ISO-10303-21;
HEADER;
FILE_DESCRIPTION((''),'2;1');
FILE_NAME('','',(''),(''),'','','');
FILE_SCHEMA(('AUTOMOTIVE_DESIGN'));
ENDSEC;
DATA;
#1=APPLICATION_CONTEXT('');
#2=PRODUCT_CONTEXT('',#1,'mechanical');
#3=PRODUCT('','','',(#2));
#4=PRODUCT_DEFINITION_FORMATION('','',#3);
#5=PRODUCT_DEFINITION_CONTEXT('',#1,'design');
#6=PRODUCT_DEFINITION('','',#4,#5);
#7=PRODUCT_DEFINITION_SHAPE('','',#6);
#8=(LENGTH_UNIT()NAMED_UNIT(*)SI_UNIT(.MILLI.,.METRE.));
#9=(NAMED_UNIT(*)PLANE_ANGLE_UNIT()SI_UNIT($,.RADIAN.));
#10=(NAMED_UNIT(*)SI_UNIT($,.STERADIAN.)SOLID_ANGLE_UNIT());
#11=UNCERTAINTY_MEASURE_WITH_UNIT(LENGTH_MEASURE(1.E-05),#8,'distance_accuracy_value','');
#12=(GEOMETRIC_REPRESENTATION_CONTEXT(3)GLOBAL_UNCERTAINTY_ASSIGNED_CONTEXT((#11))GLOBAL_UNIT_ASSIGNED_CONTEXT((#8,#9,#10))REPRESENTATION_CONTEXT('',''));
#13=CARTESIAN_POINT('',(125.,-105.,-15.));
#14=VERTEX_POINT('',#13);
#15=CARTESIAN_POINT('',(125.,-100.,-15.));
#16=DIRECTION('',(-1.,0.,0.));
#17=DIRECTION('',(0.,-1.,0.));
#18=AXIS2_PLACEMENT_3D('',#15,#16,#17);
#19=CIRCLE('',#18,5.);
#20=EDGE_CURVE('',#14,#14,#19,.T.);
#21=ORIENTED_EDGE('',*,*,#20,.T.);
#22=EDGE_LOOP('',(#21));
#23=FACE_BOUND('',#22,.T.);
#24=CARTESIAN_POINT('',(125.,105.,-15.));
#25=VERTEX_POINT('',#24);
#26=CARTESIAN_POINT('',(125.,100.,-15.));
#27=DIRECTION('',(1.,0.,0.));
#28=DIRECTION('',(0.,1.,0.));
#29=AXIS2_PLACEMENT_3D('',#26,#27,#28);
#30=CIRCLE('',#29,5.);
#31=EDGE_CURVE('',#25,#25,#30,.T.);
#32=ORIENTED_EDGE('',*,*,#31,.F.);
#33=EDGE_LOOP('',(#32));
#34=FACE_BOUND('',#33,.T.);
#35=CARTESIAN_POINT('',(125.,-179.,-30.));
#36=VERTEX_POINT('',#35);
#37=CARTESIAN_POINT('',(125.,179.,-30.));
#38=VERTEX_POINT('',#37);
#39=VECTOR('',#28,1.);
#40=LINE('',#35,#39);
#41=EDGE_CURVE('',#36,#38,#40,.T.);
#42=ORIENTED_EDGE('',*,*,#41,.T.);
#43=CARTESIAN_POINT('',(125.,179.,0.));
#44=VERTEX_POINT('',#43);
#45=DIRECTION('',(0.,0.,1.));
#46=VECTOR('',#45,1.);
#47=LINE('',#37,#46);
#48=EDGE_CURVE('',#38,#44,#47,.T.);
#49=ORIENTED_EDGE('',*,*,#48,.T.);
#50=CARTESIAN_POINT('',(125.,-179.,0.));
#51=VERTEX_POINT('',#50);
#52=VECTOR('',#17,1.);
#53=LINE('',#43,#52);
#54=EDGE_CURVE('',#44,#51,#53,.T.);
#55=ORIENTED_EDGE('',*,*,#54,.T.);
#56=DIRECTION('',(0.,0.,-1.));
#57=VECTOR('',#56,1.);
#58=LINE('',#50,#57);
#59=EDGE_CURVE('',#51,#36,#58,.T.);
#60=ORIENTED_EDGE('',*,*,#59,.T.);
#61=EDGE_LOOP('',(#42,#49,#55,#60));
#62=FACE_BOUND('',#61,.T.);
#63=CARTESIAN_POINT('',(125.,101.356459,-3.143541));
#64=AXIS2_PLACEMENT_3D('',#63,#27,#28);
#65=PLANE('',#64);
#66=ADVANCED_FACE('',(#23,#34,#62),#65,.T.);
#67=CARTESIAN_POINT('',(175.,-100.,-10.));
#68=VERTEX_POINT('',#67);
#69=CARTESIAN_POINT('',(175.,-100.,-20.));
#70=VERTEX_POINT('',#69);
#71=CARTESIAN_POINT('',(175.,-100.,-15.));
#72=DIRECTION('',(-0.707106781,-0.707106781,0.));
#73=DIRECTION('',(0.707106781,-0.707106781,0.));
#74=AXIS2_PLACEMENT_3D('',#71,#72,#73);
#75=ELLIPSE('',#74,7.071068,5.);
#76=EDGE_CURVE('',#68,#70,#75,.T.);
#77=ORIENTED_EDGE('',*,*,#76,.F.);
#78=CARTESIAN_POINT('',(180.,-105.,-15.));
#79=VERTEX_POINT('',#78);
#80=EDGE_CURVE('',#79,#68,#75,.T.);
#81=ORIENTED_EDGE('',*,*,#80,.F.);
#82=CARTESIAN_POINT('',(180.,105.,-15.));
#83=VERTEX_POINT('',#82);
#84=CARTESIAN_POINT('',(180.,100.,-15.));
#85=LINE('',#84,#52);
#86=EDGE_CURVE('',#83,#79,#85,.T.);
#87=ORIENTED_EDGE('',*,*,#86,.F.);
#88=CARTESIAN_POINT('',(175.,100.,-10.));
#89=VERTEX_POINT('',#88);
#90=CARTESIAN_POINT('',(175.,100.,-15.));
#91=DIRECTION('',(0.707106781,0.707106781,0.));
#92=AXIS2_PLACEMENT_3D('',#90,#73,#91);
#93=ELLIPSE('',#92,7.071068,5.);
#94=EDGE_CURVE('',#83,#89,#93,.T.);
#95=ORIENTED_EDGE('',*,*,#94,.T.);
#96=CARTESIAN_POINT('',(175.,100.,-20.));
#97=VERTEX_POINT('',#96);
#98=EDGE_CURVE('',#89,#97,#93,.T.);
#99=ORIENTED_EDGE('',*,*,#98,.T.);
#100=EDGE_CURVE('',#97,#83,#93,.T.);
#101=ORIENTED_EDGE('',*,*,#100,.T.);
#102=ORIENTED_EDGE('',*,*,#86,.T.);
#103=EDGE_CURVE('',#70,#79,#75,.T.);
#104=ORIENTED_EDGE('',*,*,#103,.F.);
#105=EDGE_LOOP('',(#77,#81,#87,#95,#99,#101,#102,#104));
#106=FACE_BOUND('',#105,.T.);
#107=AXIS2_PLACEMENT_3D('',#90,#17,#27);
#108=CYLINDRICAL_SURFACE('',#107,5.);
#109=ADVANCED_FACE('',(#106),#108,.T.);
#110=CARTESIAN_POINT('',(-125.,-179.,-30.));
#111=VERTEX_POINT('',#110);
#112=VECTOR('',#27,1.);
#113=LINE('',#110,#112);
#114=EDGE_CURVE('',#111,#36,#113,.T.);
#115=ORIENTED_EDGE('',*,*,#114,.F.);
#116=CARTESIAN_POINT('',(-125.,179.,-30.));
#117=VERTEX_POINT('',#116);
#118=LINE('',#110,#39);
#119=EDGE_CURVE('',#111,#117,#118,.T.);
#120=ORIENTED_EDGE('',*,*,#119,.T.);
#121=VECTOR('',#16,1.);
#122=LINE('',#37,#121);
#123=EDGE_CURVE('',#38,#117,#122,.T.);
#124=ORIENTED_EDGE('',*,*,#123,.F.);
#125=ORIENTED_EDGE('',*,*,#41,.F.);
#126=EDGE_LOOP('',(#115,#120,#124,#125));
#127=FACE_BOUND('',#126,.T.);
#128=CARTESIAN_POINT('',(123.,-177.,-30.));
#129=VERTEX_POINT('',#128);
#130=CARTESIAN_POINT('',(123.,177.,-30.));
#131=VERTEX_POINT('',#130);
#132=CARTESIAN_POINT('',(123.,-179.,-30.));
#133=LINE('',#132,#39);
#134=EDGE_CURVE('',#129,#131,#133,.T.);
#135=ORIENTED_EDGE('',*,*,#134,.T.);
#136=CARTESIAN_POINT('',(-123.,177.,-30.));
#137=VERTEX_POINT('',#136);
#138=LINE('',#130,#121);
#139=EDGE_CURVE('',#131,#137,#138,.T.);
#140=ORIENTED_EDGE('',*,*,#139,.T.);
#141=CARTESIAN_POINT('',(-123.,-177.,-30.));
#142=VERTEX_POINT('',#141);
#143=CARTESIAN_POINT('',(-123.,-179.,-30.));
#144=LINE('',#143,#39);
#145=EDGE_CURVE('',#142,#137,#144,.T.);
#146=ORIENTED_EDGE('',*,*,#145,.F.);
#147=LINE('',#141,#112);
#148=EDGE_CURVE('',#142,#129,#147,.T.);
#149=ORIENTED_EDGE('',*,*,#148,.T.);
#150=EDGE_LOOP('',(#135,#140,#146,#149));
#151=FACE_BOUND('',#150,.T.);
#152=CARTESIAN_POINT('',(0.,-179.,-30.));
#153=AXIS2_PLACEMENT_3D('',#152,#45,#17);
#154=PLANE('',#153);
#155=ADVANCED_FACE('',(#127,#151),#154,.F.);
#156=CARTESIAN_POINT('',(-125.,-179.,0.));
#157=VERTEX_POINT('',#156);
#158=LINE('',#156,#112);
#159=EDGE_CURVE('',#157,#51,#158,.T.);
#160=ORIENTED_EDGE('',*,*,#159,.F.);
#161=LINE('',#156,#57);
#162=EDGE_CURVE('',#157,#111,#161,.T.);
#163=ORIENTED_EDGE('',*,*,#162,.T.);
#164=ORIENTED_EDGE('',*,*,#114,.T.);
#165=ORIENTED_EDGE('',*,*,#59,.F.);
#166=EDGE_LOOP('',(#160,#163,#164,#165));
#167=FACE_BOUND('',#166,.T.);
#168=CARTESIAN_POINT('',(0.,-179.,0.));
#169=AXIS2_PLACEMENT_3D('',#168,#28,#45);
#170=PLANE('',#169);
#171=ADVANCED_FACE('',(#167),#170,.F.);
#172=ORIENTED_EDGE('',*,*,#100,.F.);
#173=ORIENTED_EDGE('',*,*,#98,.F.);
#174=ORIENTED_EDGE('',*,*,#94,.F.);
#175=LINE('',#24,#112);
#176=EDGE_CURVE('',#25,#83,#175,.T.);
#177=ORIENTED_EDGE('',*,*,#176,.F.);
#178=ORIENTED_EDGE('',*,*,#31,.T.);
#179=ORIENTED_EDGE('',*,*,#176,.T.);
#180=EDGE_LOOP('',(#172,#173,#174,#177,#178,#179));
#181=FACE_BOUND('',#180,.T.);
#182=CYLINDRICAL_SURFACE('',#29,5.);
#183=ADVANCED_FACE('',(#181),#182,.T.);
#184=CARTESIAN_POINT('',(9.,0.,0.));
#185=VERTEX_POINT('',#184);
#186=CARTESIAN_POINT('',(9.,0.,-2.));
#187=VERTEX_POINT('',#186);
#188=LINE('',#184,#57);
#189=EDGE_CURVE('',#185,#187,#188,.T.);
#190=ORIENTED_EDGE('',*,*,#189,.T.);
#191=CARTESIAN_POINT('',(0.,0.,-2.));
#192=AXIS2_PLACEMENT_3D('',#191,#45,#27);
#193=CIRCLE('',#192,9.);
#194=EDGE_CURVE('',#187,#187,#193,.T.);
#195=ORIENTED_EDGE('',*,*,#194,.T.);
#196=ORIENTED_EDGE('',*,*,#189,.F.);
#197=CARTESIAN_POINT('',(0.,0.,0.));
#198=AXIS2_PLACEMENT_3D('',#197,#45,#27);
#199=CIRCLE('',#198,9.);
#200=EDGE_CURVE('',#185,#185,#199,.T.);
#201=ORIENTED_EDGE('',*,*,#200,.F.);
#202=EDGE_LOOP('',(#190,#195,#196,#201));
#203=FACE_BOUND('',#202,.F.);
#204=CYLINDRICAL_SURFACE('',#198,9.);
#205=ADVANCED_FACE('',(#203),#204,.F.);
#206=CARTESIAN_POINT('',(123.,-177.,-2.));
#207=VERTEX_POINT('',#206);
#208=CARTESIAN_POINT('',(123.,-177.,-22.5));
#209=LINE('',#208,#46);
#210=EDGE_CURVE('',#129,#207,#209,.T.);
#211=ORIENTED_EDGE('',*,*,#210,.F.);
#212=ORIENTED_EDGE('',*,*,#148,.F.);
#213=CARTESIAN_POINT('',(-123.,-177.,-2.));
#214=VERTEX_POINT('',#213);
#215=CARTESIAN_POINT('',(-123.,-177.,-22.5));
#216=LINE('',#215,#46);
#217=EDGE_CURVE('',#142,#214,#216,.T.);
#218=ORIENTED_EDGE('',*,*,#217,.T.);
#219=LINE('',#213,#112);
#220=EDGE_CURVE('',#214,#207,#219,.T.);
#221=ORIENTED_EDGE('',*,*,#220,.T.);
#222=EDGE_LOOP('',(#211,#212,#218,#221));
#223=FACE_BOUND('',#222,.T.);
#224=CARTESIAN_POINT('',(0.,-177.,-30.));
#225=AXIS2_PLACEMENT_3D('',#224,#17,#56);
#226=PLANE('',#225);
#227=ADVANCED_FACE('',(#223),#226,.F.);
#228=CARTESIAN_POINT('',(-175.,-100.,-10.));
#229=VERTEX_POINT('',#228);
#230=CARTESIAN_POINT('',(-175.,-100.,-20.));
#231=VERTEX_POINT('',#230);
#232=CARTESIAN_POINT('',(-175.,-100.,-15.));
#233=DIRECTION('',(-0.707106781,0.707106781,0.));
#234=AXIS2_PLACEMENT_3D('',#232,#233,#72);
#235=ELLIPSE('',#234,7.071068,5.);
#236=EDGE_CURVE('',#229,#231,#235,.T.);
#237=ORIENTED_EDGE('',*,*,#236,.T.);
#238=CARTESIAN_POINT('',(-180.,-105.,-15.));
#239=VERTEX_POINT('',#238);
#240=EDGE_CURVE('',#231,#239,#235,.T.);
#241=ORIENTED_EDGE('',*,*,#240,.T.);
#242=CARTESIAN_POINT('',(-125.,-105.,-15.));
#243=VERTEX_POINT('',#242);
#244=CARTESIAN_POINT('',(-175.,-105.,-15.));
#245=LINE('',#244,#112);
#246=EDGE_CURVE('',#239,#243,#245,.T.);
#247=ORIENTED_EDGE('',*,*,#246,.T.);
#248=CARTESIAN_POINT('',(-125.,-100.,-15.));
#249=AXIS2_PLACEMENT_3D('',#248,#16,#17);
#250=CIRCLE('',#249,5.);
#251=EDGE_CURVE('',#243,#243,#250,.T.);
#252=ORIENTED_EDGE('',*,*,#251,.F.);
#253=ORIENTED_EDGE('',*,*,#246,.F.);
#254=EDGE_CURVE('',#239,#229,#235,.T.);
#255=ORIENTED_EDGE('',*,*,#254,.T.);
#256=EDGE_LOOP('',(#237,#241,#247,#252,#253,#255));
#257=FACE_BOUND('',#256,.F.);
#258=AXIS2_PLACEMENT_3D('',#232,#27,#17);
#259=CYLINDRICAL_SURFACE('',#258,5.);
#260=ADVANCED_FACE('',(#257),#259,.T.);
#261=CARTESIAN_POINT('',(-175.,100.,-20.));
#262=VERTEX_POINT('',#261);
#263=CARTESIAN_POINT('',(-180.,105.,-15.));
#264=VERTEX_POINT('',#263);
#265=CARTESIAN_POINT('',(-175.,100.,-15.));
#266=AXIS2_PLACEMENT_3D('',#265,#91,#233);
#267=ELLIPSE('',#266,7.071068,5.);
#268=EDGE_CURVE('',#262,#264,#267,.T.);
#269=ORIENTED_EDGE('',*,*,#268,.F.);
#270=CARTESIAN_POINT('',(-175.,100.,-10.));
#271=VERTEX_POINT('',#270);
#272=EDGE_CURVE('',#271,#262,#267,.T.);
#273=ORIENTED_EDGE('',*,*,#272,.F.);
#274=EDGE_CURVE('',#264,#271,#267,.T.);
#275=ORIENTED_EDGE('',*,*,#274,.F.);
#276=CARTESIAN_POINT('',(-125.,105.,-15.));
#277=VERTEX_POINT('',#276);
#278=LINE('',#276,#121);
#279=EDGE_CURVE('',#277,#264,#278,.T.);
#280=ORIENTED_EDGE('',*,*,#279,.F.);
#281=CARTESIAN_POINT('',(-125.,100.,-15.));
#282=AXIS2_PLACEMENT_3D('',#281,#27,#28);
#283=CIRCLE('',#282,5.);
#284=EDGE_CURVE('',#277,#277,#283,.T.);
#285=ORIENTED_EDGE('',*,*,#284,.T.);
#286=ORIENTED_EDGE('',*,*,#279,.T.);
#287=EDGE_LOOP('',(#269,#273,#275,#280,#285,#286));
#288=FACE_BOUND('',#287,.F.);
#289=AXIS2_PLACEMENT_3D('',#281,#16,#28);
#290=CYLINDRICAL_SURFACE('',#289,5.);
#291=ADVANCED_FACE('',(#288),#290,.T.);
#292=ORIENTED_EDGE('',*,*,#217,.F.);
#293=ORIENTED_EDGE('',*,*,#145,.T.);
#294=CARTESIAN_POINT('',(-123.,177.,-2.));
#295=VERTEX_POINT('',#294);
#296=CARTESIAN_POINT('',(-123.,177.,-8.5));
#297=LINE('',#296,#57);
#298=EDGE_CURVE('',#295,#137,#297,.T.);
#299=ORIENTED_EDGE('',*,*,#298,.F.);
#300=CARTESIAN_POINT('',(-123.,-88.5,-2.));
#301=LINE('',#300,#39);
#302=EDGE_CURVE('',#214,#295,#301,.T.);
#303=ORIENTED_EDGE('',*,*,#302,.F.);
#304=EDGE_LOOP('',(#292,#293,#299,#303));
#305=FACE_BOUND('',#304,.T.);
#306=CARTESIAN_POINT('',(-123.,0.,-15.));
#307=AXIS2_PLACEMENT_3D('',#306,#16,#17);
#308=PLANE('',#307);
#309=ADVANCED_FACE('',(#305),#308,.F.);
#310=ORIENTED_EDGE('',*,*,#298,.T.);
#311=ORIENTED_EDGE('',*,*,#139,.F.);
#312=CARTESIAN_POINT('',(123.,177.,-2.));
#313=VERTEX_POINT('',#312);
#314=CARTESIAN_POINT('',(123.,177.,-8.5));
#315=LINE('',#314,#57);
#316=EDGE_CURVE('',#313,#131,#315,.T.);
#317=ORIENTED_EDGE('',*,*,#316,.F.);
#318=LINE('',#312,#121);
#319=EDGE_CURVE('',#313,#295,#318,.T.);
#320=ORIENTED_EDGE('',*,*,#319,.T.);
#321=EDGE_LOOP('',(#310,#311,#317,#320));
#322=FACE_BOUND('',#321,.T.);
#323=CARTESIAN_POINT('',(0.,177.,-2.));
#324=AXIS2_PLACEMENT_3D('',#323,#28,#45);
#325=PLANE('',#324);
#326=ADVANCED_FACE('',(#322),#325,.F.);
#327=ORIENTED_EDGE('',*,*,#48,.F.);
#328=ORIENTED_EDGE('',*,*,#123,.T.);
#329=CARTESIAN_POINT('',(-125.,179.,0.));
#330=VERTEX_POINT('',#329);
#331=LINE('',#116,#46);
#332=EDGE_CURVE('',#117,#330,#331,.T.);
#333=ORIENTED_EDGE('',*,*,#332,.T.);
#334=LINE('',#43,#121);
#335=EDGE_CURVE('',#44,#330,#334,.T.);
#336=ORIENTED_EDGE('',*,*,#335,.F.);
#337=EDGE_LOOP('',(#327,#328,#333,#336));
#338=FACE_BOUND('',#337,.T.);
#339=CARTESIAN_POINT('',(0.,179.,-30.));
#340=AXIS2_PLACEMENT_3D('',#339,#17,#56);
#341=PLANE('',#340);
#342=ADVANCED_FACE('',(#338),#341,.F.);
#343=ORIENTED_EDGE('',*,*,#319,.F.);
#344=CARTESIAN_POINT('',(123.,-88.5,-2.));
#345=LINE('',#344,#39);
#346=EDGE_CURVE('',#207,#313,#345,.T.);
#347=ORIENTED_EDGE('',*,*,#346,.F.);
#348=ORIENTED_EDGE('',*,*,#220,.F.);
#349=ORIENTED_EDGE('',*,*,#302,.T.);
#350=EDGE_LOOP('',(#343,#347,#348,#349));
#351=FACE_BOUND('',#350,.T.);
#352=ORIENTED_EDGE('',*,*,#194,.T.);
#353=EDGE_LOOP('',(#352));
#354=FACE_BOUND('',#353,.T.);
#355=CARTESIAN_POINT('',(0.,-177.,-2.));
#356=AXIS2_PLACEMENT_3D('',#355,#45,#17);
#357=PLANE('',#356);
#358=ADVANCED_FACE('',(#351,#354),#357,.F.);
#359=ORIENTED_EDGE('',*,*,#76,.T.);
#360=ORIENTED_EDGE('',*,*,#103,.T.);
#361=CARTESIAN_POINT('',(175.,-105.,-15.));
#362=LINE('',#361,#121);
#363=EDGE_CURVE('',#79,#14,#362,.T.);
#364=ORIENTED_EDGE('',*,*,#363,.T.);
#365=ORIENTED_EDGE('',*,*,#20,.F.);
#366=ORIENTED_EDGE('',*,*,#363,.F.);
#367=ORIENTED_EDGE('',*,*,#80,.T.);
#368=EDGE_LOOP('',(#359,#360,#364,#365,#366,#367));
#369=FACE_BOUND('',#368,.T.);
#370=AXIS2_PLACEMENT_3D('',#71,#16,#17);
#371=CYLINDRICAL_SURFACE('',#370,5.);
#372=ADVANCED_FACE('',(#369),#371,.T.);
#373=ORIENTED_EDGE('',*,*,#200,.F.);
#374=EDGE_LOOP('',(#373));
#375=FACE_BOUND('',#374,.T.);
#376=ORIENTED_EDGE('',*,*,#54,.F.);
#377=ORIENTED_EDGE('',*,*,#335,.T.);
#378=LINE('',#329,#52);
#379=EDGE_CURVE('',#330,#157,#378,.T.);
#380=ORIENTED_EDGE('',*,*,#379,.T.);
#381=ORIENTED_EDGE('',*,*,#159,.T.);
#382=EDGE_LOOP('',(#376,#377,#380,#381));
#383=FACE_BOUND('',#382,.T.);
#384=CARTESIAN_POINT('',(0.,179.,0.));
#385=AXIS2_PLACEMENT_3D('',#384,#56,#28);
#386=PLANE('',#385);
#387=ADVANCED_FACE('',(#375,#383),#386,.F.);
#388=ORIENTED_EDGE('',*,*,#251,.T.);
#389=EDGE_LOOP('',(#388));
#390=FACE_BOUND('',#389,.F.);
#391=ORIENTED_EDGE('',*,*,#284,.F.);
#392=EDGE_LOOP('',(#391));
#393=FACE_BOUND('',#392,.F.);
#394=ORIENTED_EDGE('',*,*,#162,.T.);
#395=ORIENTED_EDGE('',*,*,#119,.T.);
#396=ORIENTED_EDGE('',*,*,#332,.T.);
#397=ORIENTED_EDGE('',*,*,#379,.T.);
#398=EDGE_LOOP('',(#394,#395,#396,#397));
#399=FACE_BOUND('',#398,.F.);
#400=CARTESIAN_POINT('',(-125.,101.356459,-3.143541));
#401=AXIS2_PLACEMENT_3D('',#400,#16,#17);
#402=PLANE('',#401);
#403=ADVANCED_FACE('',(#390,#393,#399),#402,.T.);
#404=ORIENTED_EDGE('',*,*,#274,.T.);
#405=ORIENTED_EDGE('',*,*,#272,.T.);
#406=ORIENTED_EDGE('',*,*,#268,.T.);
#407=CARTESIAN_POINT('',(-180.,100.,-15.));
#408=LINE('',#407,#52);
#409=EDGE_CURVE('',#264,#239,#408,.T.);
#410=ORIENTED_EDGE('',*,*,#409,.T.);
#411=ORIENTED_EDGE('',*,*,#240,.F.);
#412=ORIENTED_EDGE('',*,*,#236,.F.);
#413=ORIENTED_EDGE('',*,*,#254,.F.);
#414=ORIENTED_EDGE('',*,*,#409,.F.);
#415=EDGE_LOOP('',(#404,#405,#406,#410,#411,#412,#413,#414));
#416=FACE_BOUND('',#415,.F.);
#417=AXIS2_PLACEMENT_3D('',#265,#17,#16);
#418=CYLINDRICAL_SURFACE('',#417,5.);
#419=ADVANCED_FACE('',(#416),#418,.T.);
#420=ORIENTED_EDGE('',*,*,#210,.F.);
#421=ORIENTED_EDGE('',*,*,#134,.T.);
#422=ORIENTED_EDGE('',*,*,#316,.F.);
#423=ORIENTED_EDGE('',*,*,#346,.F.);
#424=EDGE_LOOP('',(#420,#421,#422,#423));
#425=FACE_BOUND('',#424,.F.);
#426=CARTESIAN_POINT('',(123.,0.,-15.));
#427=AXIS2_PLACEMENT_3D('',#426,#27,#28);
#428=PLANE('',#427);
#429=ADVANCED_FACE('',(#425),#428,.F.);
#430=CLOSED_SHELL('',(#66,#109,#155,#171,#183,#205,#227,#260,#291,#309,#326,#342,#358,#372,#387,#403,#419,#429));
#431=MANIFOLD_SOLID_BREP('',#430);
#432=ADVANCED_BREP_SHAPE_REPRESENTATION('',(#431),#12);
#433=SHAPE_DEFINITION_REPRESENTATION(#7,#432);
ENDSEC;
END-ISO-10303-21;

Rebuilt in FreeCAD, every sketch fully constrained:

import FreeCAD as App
import Part
import Sketcher
from FreeCAD import Vector


def add_polygon(sketch, points):
    """Adds a closed chain of lines whose ends are joined by coincident constraints."""
    first, n = sketch.GeometryCount, len(points)
    for a, b in zip(points, points[1:] + points[:1]):
        sketch.addGeometry(Part.LineSegment(App.Vector(*a, 0), App.Vector(*b, 0)), False)
    for i in range(n):
        sketch.addConstraint(Sketcher.Constraint("Coincident", first + i, 2, first + (i + 1) % n, 1))

doc = App.newDocument("Part")
body = doc.addObject("PartDesign::Body", "Body")

# Sketch on YZ plane
sketch1 = body.newObject("Sketcher::SketchObject", "Sketch")
sketch1.AttachmentSupport = (doc.getObject("YZ_Plane"), [""])
sketch1.MapMode = "FlatFace"
add_polygon(sketch1, [(179, 0), (-179, 0), (-179, -30), (-177, -30), (-177, -2), (177, -2), (177, -30), (179, -30)])  # lines 0-7
sketch1.addConstraint(Sketcher.Constraint("Horizontal", 0))
sketch1.addConstraint(Sketcher.Constraint("Vertical", 1))
sketch1.addConstraint(Sketcher.Constraint("Horizontal", 2))
sketch1.addConstraint(Sketcher.Constraint("Vertical", 3))
sketch1.addConstraint(Sketcher.Constraint("Horizontal", 4))
sketch1.addConstraint(Sketcher.Constraint("Vertical", 5))
sketch1.addConstraint(Sketcher.Constraint("Horizontal", 6))
sketch1.addConstraint(Sketcher.Constraint("Vertical", 7))
sketch1.addConstraint(Sketcher.Constraint("Symmetric", 0, 2, 7, 2, -1, 1))
sketch1.addConstraint(Sketcher.Constraint("Symmetric", 2, 2, 5, 2, -2))
sketch1.addConstraint(Sketcher.Constraint("DistanceX", 0, 2, 0, 1, 358.0))
sketch1.addConstraint(Sketcher.Constraint("DistanceX", 2, 1, 2, 2, 2.0))
sketch1.addConstraint(Sketcher.Constraint("DistanceY", 1, 2, 1, 1, 30.0))
sketch1.addConstraint(Sketcher.Constraint("DistanceY", 3, 1, 3, 2, 28.0))
pad1 = body.newObject("PartDesign::Pad", "Pad")
pad1.Profile = sketch1
pad1.Length = 125

# Sketch on YZ plane
sketch2 = body.newObject("Sketcher::SketchObject", "Sketch001")
sketch2.AttachmentSupport = (doc.getObject("YZ_Plane"), [""])
sketch2.MapMode = "FlatFace"
sketch2.AttachmentOffset = App.Placement(Vector(0, 0, 125), App.Rotation())
add_polygon(sketch2, [(179, 0), (-179, 0), (-179, -30), (179, -30)])  # lines 0-3
sketch2.addConstraint(Sketcher.Constraint("Horizontal", 0))
sketch2.addConstraint(Sketcher.Constraint("Vertical", 1))
sketch2.addConstraint(Sketcher.Constraint("Horizontal", 2))
sketch2.addConstraint(Sketcher.Constraint("Vertical", 3))
sketch2.addConstraint(Sketcher.Constraint("Symmetric", 0, 2, 3, 2, -1, 1))
sketch2.addConstraint(Sketcher.Constraint("DistanceX", 0, 2, 0, 1, 358.0))
sketch2.addConstraint(Sketcher.Constraint("DistanceY", 1, 2, 1, 1, 30.0))
pad2 = body.newObject("PartDesign::Pad", "Pad001")
pad2.Profile = sketch2
pad2.Length = 2
pad2.Reversed = True

# Sketch on YZ plane
sketch3 = body.newObject("Sketcher::SketchObject", "Sketch002")
sketch3.AttachmentSupport = (doc.getObject("YZ_Plane"), [""])
sketch3.MapMode = "FlatFace"
sketch3.AttachmentOffset = App.Placement(Vector(0, 0, 125), App.Rotation())
sketch3.addGeometry(Part.Circle(Vector(100, -15, 0), Vector(0, 0, 1), 5), False)
sketch3.addConstraint(Sketcher.Constraint("Diameter", 0, 10.0))
sketch3.addConstraint(Sketcher.Constraint("DistanceX", -1, 1, 0, 3, 100.0))
sketch3.addConstraint(Sketcher.Constraint("DistanceY", 0, 3, -1, 1, 15.0))

# Sketch on XY plane
sketch4 = body.newObject("Sketcher::SketchObject", "Sketch003")
sketch4.AttachmentSupport = (doc.getObject("XY_Plane"), [""])
sketch4.MapMode = "FlatFace"
sketch4.AttachmentOffset = App.Placement(Vector(0, 0, -15), App.Rotation())
sketch4.addGeometry(Part.LineSegment(Vector(125, 100, 0), Vector(175, 100, 0)), False)
sketch4.addGeometry(Part.LineSegment(Vector(175, 100, 0), Vector(175, -100, 0)), False)
sketch4.addGeometry(Part.LineSegment(Vector(175, -100, 0), Vector(125, -100, 0)), False)
sketch4.addConstraint(Sketcher.Constraint("Coincident", 0, 2, 1, 1))
sketch4.addConstraint(Sketcher.Constraint("Coincident", 1, 2, 2, 1))
sketch4.addConstraint(Sketcher.Constraint("Horizontal", 0))
sketch4.addConstraint(Sketcher.Constraint("Vertical", 1))
sketch4.addConstraint(Sketcher.Constraint("Horizontal", 2))
sketch4.addConstraint(Sketcher.Constraint("Symmetric", 0, 1, 2, 2, -1))
sketch4.addConstraint(Sketcher.Constraint("DistanceX", 0, 1, 0, 2, 50.0))
sketch4.addConstraint(Sketcher.Constraint("DistanceY", 1, 2, 1, 1, 200.0))
sketch4.addConstraint(Sketcher.Constraint("DistanceX", -1, 1, 0, 1, 125.0))
doc.recompute()

additivepipe = body.newObject("PartDesign::AdditivePipe", "AdditivePipe")
additivepipe.Profile = sketch3
additivepipe.Spine = (sketch4, ["Edge1", "Edge2", "Edge3"])
additivepipe.Transition = "Right corner"
body2 = doc.addObject("PartDesign::Body", "Body001")
doc.recompute()

body2.BaseFeature = body
doc.recompute()

mirroring = doc.addObject("Part::Mirroring", "Mirroring")
mirroring.Source = body
mirroring.Base = Vector(0, 0, -3.028986)
mirroring.Normal = Vector(-1, 0, 0)
body3 = doc.addObject("PartDesign::Body", "Body002")
body3.BaseFeature = mirroring
boolean = body2.newObject("PartDesign::Boolean", "Boolean")
boolean.Type = "Fuse"
boolean.addObjects([body3])
doc.recompute()

# Sketch on XY plane
sketch5 = body2.newObject("Sketcher::SketchObject", "Sketch004")
sketch5.AttachmentSupport = (doc.getObject("XY_Plane001"), [""])
sketch5.MapMode = "FlatFace"
sketch5.addGeometry(Part.Circle(Vector(0, 0, 0), Vector(0, 0, 1), 9), False)
sketch5.addConstraint(Sketcher.Constraint("Coincident", 0, 3, -1, 1))
sketch5.addConstraint(Sketcher.Constraint("Diameter", 0, 18.0))
pocket1 = body2.newObject("PartDesign::Pocket", "Pocket")
pocket1.Profile = sketch5
pocket1.Length = 25
mirroring.Visibility = False

doc.recompute()
